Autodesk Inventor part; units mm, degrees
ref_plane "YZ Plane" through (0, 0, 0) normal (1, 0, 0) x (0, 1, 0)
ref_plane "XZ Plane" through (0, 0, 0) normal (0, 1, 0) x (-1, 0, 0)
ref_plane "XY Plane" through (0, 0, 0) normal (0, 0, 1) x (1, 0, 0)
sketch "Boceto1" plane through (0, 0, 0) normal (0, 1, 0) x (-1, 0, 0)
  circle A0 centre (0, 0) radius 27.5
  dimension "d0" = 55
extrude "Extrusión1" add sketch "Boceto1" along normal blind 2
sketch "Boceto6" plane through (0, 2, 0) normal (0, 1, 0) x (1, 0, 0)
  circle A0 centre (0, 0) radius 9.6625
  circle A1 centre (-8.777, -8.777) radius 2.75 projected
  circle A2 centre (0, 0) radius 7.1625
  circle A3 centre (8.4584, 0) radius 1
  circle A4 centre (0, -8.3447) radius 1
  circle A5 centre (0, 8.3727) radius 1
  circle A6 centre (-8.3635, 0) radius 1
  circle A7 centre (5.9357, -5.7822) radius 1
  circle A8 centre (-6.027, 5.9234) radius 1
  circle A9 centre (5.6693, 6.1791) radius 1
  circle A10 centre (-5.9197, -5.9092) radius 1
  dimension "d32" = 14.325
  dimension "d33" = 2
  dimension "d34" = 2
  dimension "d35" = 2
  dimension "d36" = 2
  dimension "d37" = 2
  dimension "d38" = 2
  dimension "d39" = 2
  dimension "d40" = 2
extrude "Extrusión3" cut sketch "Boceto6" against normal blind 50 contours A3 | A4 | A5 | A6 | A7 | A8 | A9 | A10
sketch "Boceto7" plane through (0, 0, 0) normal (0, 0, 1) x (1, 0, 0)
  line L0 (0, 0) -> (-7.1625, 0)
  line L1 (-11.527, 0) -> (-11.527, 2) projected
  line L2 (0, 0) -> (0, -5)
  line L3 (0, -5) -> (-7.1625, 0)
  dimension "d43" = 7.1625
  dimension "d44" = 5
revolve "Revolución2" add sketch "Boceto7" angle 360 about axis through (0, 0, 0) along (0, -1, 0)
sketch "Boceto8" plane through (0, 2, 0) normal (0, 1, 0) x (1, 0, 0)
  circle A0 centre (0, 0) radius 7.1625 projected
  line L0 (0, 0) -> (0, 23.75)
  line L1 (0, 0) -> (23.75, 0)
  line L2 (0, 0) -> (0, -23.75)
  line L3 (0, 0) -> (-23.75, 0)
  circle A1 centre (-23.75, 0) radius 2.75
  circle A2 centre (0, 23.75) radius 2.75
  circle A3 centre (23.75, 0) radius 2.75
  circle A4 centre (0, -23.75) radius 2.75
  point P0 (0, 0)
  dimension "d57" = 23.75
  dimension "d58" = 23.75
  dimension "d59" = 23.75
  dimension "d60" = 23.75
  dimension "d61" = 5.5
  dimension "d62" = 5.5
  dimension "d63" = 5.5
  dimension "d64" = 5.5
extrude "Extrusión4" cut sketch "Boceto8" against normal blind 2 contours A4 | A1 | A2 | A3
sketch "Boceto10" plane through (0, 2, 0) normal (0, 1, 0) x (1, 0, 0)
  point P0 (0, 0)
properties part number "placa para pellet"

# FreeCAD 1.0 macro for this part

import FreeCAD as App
import Part
import Sketcher

V = App.Vector
Q = App.Units.Quantity


def add_polygon(sketch, points):
    """Adds a closed chain of lines whose ends are joined by coincident constraints."""
    first, n = sketch.GeometryCount, len(points)
    for a, b in zip(points, points[1:] + points[:1]):
        sketch.addGeometry(Part.LineSegment(App.Vector(*a, 0), App.Vector(*b, 0)), False)
    for i in range(n):
        sketch.addConstraint(Sketcher.Constraint("Coincident", first + i, 2, first + (i + 1) % n, 1))

doc = App.newDocument("Part")
body = doc.addObject("PartDesign::Body", "Body")

# Sketch on XZ plane
sketch1 = body.newObject("Sketcher::SketchObject", "Sketch")
sketch1.AttachmentSupport = (doc.getObject("XZ_Plane"), [""])
sketch1.MapMode = "FlatFace"
sketch1.addGeometry(Part.Circle(V(0, 0, 0), V(0, 0, 1), 28), False)
sketch1.addConstraint(Sketcher.Constraint("Coincident", 0, 3, -1, 1))
sketch1.addConstraint(Sketcher.Constraint("Diameter", 0, Q("55 mm")))
pad1 = body.newObject("PartDesign::Pad", "Pad")
pad1.Profile = sketch1
pad1.Length = 2
pad1.Reversed = True

# Sketch on XZ plane
sketch2 = body.newObject("Sketcher::SketchObject", "Sketch001")
sketch2.AttachmentSupport = (doc.getObject("XZ_Plane"), [""])
sketch2.MapMode = "FlatFace"
sketch2.AttachmentOffset = App.Placement(V(0, 0, -2), App.Rotation())
sketch2.addGeometry(Part.Circle(V(8.5, 0, 0), V(0, 0, 1), 1), False)
sketch2.addGeometry(Part.Circle(V(0, 8.3, 0), V(0, 0, 1), 1), False)
sketch2.addGeometry(Part.Circle(V(0, -8.4, 0), V(0, 0, 1), 1), False)
sketch2.addGeometry(Part.Circle(V(-8.4, 0, 0), V(0, 0, 1), 1), False)
sketch2.addGeometry(Part.Circle(V(5.9, 5.8, 0), V(0, 0, 1), 1), False)
sketch2.addGeometry(Part.Circle(V(-6, -5.9, 0), V(0, 0, 1), 1), False)
sketch2.addGeometry(Part.Circle(V(5.7, -6.2, 0), V(0, 0, 1), 1), False)
sketch2.addGeometry(Part.Circle(V(-5.9, 5.9, 0), V(0, 0, 1), 1), False)
sketch2.addConstraint(Sketcher.Constraint("Equal", 0, 1))
sketch2.addConstraint(Sketcher.Constraint("Equal", 1, 2))
sketch2.addConstraint(Sketcher.Constraint("Equal", 2, 3))
sketch2.addConstraint(Sketcher.Constraint("Equal", 3, 4))
sketch2.addConstraint(Sketcher.Constraint("Equal", 4, 5))
sketch2.addConstraint(Sketcher.Constraint("Equal", 5, 6))
sketch2.addConstraint(Sketcher.Constraint("Equal", 6, 7))
sketch2.addConstraint(Sketcher.Constraint("PointOnObject", 0, 3, -1))
sketch2.addConstraint(Sketcher.Constraint("PointOnObject", 1, 3, -2))
sketch2.addConstraint(Sketcher.Constraint("PointOnObject", 2, 3, -2))
sketch2.addConstraint(Sketcher.Constraint("PointOnObject", 3, 3, -1))
sketch2.addConstraint(Sketcher.Constraint("Diameter", 0, Q("2 mm")))
sketch2.addConstraint(Sketcher.Constraint("DistanceX", 5, 3, -1, 1, Q("6.027 mm")))
sketch2.addConstraint(Sketcher.Constraint("DistanceY", 6, 3, -1, 1, Q("6.179 mm")))
sketch2.addConstraint(Sketcher.Constraint("DistanceX", 3, 3, 0, 3, Q("16.822 mm")))
sketch2.addConstraint(Sketcher.Constraint("DistanceY", 2, 3, 4, 3, Q("14.155 mm")))
sketch2.addConstraint(Sketcher.Constraint("DistanceY", 5, 3, 1, 3, Q("14.268 mm")))
sketch2.addConstraint(Sketcher.Constraint("DistanceX", 6, 3, 0, 3, Q("2.789 mm")))
sketch2.addConstraint(Sketcher.Constraint("DistanceY", 4, 3, 7, 3, Q("0.127 mm")))
sketch2.addConstraint(Sketcher.Constraint("DistanceX", -1, 1, 0, 3, Q("8.4584 mm")))
sketch2.addConstraint(Sketcher.Constraint("DistanceY", -1, 1, 1, 3, Q("8.3447 mm")))
sketch2.addConstraint(Sketcher.Constraint("DistanceY", 2, 3, -1, 1, Q("8.3727 mm")))
sketch2.addConstraint(Sketcher.Constraint("DistanceX", -1, 1, 4, 3, Q("5.9357 mm")))
sketch2.addConstraint(Sketcher.Constraint("DistanceX", 7, 3, -1, 1, Q("5.9197 mm")))
pocket1 = body.newObject("PartDesign::Pocket", "Pocket")
pocket1.Profile = sketch2
pocket1.Length = 50
pocket1.Reversed = True

# Sketch on XY plane
sketch3 = body.newObject("Sketcher::SketchObject", "Sketch002")
sketch3.AttachmentSupport = (doc.getObject("XY_Plane"), [""])
sketch3.MapMode = "FlatFace"
add_polygon(sketch3, [(0, -5), (0, 0), (-7, 0)])  # lines 0-2
sketch3.addConstraint(Sketcher.Constraint("Vertical", 0))
sketch3.addConstraint(Sketcher.Constraint("Horizontal", 1))
sketch3.addConstraint(Sketcher.Constraint("Coincident", 0, 2, -1, 1))
sketch3.addConstraint(Sketcher.Constraint("DistanceY", 0, 1, 0, 2, Q("5 mm")))
sketch3.addConstraint(Sketcher.Constraint("DistanceX", 1, 2, 1, 1, Q("7.1625 mm")))
revolution = body.newObject("PartDesign::Revolution", "Revolution")
revolution.Profile = sketch3
revolution.ReferenceAxis = (sketch3, ["V_Axis"])
revolution.Angle = 360

# Sketch on XZ plane
sketch4 = body.newObject("Sketcher::SketchObject", "Sketch003")
sketch4.AttachmentSupport = (doc.getObject("XZ_Plane"), [""])
sketch4.MapMode = "FlatFace"
sketch4.AttachmentOffset = App.Placement(V(0, 0, -2), App.Rotation())
sketch4.addGeometry(Part.Circle(V(0, 23.8, 0), V(0, 0, 1), 2.8), False)
sketch4.addGeometry(Part.Circle(V(-23.8, 0, 0), V(0, 0, 1), 2.8), False)
sketch4.addGeometry(Part.Circle(V(0, -23.8, 0), V(0, 0, 1), 2.8), False)
sketch4.addGeometry(Part.Circle(V(23.8, 0, 0), V(0, 0, 1), 2.8), False)
sketch4.addConstraint(Sketcher.Constraint("Equal", 0, 1))
sketch4.addConstraint(Sketcher.Constraint("Equal", 1, 2))
sketch4.addConstraint(Sketcher.Constraint("Equal", 2, 3))
sketch4.addConstraint(Sketcher.Constraint("Symmetric", 0, 3, 2, 3, -1, 1))
sketch4.addConstraint(Sketcher.Constraint("Symmetric", 1, 3, 3, 3, -1, 1))
sketch4.addConstraint(Sketcher.Constraint("PointOnObject", 0, 3, -2))
sketch4.addConstraint(Sketcher.Constraint("PointOnObject", 1, 3, -1))
sketch4.addConstraint(Sketcher.Constraint("Diameter", 0, Q("5.5 mm")))
sketch4.addConstraint(Sketcher.Constraint("DistanceY", -1, 1, 0, 3, Q("23.75 mm")))
sketch4.addConstraint(Sketcher.Constraint("DistanceX", 1, 3, -1, 1, Q("23.75 mm")))
pocket2 = body.newObject("PartDesign::Pocket", "Pocket001")
pocket2.Profile = sketch4
pocket2.Length = 2
pocket2.Reversed = True

doc.recompute()
